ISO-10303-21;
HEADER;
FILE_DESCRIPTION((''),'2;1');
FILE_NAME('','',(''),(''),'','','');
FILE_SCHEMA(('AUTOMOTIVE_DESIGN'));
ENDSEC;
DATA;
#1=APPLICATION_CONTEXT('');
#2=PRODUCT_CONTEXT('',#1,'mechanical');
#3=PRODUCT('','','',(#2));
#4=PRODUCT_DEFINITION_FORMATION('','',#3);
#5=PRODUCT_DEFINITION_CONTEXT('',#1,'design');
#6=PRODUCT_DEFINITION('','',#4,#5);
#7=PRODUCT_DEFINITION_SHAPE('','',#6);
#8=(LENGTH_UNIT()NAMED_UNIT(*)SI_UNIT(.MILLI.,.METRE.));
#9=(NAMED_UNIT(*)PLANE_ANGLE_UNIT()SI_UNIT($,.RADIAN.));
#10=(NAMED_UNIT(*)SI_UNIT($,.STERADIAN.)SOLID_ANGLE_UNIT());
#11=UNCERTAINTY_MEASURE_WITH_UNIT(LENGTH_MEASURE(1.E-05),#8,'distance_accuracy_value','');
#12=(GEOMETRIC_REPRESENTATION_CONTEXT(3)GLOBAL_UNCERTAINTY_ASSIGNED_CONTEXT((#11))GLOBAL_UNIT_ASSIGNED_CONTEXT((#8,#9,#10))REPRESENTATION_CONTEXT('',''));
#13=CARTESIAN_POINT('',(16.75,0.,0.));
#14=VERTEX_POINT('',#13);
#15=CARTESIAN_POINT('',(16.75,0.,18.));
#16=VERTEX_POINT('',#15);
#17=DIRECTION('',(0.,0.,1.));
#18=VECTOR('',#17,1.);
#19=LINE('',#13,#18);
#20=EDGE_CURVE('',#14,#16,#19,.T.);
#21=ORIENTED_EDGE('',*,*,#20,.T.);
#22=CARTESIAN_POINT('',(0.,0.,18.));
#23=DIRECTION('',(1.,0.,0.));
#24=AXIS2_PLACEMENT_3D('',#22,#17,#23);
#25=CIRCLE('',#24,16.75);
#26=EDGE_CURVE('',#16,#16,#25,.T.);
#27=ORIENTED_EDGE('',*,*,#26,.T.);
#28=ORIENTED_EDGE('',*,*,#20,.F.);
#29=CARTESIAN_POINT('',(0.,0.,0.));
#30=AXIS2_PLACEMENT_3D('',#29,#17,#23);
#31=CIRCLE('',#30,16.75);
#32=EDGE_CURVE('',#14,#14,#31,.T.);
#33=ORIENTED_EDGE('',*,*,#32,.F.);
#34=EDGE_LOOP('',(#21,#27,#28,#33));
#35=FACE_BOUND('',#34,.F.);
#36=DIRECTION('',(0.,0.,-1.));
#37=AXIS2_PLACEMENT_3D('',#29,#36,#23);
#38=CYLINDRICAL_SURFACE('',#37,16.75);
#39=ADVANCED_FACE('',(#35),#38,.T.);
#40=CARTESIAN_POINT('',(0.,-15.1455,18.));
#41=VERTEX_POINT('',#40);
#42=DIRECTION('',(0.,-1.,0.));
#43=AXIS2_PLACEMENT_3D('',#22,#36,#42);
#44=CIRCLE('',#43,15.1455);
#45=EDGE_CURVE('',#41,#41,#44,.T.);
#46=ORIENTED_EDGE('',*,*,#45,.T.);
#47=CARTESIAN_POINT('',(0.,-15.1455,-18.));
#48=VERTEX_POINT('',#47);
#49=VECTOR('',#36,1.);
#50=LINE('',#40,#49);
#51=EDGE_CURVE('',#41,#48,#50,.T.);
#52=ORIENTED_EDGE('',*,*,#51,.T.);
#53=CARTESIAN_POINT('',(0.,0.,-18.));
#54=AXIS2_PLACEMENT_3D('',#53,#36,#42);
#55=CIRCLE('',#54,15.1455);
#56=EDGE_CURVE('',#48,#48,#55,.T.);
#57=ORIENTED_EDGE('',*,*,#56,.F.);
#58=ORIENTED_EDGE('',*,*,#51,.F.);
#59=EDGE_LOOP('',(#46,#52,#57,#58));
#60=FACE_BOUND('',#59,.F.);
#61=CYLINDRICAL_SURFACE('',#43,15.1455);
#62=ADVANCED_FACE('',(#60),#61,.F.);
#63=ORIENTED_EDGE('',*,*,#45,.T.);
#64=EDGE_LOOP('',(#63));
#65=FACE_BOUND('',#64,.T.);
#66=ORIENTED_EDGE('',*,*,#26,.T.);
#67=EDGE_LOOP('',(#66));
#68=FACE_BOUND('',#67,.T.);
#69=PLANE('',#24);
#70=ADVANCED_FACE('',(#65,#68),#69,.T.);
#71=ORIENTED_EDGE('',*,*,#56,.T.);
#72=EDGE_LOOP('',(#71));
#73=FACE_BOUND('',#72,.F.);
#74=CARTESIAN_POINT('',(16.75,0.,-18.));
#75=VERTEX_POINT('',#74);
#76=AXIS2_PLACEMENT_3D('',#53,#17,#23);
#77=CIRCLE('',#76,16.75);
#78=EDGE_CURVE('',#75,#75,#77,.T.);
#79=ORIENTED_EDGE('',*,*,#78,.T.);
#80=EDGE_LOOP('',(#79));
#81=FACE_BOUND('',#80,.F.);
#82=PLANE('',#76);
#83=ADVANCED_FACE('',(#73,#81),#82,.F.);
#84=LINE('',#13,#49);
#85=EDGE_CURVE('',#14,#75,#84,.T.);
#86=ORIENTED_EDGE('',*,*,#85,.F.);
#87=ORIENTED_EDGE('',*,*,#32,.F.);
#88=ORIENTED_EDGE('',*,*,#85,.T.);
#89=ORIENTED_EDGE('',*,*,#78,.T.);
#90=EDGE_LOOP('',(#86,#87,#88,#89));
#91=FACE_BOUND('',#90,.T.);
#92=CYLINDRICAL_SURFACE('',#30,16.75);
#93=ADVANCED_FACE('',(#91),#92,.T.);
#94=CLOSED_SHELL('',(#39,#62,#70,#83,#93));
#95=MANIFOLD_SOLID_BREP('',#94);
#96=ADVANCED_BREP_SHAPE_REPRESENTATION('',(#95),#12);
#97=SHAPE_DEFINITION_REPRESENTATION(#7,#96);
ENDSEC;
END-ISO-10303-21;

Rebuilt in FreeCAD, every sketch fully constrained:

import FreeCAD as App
import Part
import Sketcher
from FreeCAD import Vector
Q = App.Units.Quantity

doc = App.newDocument("Part")
body = doc.addObject("PartDesign::Body", "Body")

# Sketch on XY plane
sketch1 = doc.addObject("Sketcher::SketchObject", "Sketch")
body.addObject(sketch1)
sketch1.AttachmentSupport = (doc.XY_Plane, [""])
sketch1.MapMode = "FlatFace"
sketch1.addGeometry(Part.Circle(Vector(0, 0, 0), Vector(0, 0, 1), 17), False)
sketch1.addConstraint([
    Sketcher.Constraint("Coincident", 0, 3, -1, 1),
    Sketcher.Constraint("Diameter", 0, Q("33.5 mm")),
])
pad1 = doc.addObject("PartDesign::Pad", "Pad")
body.addObject(pad1)
pad1.Profile = sketch1
pad1.Length = 36
pad1.Midplane = True

# Sketch on XY plane
sketch2 = doc.addObject("Sketcher::SketchObject", "Sketch001")
body.addObject(sketch2)
sketch2.AttachmentSupport = (doc.XY_Plane, [""])
sketch2.MapMode = "FlatFace"
sketch2.AttachmentOffset = App.Placement(Vector(0, 0, 18), App.Rotation())
sketch2.addGeometry(Part.Circle(Vector(0, 0, 0), Vector(0, 0, 1), 15), False)
sketch2.addConstraint([
    Sketcher.Constraint("Coincident", 0, 3, -1, 1),
    Sketcher.Constraint("Diameter", 0, Q("30.291 mm")),
])
doc.recompute()
hole = doc.addObject("PartDesign::Hole", "Hole")
body.addObject(hole)
hole.Profile = sketch2
hole.ThreadType = "None"
hole.Diameter = 30.291
hole.DepthType = "ThroughAll"

doc.recompute()
